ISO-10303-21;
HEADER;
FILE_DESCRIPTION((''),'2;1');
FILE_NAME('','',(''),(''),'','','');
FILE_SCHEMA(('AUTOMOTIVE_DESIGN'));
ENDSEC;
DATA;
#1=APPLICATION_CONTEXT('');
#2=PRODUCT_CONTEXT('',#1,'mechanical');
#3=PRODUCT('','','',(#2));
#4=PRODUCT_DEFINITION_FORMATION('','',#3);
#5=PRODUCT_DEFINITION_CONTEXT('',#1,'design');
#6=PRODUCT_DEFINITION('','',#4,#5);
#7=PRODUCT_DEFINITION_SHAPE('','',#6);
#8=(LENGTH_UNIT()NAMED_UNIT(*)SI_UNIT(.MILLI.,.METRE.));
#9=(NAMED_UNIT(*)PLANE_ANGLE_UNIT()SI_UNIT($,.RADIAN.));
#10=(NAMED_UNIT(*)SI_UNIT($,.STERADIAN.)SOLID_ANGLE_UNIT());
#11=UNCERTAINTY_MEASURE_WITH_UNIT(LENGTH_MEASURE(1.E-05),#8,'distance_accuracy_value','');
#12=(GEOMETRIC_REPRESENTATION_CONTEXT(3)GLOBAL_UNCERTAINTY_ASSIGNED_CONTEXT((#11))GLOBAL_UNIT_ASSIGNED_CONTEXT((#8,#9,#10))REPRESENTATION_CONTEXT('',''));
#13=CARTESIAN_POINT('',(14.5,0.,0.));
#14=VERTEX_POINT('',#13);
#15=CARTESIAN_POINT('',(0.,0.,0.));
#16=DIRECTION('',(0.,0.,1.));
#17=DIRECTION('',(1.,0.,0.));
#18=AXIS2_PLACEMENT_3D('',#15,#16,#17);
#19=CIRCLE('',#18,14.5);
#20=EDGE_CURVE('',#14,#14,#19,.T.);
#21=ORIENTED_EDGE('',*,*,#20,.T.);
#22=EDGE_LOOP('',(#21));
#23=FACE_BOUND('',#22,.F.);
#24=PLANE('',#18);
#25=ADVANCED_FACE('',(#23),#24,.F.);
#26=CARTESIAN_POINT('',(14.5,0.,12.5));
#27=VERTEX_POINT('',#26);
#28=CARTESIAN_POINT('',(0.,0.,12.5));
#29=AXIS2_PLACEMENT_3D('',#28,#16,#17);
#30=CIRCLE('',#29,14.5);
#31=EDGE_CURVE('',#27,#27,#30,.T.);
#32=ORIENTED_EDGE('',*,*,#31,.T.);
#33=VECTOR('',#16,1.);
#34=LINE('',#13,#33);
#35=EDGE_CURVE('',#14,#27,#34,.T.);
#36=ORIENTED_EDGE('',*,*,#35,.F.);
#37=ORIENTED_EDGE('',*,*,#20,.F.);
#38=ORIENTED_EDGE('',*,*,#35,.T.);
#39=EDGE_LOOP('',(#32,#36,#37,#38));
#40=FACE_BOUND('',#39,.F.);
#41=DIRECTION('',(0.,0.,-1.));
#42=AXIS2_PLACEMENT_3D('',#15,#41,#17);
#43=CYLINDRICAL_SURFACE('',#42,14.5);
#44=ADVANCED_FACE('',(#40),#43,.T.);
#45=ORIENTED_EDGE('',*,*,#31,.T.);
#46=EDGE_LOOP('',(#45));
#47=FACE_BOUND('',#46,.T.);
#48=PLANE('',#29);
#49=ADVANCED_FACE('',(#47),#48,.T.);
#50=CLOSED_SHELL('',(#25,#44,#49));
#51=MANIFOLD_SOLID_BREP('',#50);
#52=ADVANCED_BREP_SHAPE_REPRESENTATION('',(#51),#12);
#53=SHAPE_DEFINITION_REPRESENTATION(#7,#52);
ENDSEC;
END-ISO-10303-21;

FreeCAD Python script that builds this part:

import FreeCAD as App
import Part
import Sketcher
from FreeCAD import Vector

doc = App.newDocument("Part")
body = doc.addObject("PartDesign::Body", "Body")

# Sketch on XY plane
sketch1 = body.newObject("Sketcher::SketchObject", "Sketch")
sketch1.AttachmentSupport = (doc.getObject("XY_Plane"), [""])
sketch1.MapMode = "FlatFace"
sketch1.addGeometry(Part.Circle(Vector(0, 0, 0), Vector(0, 0, 1), 14.5), False)
sketch1.addConstraint([
    Sketcher.Constraint("Coincident", 0, 3, -1, 1),
    Sketcher.Constraint("Diameter", 0, 29.0),
])
pad1 = body.newObject("PartDesign::Pad", "Pad")
pad1.Profile = sketch1
pad1.Length = 12.5

doc.recompute()
